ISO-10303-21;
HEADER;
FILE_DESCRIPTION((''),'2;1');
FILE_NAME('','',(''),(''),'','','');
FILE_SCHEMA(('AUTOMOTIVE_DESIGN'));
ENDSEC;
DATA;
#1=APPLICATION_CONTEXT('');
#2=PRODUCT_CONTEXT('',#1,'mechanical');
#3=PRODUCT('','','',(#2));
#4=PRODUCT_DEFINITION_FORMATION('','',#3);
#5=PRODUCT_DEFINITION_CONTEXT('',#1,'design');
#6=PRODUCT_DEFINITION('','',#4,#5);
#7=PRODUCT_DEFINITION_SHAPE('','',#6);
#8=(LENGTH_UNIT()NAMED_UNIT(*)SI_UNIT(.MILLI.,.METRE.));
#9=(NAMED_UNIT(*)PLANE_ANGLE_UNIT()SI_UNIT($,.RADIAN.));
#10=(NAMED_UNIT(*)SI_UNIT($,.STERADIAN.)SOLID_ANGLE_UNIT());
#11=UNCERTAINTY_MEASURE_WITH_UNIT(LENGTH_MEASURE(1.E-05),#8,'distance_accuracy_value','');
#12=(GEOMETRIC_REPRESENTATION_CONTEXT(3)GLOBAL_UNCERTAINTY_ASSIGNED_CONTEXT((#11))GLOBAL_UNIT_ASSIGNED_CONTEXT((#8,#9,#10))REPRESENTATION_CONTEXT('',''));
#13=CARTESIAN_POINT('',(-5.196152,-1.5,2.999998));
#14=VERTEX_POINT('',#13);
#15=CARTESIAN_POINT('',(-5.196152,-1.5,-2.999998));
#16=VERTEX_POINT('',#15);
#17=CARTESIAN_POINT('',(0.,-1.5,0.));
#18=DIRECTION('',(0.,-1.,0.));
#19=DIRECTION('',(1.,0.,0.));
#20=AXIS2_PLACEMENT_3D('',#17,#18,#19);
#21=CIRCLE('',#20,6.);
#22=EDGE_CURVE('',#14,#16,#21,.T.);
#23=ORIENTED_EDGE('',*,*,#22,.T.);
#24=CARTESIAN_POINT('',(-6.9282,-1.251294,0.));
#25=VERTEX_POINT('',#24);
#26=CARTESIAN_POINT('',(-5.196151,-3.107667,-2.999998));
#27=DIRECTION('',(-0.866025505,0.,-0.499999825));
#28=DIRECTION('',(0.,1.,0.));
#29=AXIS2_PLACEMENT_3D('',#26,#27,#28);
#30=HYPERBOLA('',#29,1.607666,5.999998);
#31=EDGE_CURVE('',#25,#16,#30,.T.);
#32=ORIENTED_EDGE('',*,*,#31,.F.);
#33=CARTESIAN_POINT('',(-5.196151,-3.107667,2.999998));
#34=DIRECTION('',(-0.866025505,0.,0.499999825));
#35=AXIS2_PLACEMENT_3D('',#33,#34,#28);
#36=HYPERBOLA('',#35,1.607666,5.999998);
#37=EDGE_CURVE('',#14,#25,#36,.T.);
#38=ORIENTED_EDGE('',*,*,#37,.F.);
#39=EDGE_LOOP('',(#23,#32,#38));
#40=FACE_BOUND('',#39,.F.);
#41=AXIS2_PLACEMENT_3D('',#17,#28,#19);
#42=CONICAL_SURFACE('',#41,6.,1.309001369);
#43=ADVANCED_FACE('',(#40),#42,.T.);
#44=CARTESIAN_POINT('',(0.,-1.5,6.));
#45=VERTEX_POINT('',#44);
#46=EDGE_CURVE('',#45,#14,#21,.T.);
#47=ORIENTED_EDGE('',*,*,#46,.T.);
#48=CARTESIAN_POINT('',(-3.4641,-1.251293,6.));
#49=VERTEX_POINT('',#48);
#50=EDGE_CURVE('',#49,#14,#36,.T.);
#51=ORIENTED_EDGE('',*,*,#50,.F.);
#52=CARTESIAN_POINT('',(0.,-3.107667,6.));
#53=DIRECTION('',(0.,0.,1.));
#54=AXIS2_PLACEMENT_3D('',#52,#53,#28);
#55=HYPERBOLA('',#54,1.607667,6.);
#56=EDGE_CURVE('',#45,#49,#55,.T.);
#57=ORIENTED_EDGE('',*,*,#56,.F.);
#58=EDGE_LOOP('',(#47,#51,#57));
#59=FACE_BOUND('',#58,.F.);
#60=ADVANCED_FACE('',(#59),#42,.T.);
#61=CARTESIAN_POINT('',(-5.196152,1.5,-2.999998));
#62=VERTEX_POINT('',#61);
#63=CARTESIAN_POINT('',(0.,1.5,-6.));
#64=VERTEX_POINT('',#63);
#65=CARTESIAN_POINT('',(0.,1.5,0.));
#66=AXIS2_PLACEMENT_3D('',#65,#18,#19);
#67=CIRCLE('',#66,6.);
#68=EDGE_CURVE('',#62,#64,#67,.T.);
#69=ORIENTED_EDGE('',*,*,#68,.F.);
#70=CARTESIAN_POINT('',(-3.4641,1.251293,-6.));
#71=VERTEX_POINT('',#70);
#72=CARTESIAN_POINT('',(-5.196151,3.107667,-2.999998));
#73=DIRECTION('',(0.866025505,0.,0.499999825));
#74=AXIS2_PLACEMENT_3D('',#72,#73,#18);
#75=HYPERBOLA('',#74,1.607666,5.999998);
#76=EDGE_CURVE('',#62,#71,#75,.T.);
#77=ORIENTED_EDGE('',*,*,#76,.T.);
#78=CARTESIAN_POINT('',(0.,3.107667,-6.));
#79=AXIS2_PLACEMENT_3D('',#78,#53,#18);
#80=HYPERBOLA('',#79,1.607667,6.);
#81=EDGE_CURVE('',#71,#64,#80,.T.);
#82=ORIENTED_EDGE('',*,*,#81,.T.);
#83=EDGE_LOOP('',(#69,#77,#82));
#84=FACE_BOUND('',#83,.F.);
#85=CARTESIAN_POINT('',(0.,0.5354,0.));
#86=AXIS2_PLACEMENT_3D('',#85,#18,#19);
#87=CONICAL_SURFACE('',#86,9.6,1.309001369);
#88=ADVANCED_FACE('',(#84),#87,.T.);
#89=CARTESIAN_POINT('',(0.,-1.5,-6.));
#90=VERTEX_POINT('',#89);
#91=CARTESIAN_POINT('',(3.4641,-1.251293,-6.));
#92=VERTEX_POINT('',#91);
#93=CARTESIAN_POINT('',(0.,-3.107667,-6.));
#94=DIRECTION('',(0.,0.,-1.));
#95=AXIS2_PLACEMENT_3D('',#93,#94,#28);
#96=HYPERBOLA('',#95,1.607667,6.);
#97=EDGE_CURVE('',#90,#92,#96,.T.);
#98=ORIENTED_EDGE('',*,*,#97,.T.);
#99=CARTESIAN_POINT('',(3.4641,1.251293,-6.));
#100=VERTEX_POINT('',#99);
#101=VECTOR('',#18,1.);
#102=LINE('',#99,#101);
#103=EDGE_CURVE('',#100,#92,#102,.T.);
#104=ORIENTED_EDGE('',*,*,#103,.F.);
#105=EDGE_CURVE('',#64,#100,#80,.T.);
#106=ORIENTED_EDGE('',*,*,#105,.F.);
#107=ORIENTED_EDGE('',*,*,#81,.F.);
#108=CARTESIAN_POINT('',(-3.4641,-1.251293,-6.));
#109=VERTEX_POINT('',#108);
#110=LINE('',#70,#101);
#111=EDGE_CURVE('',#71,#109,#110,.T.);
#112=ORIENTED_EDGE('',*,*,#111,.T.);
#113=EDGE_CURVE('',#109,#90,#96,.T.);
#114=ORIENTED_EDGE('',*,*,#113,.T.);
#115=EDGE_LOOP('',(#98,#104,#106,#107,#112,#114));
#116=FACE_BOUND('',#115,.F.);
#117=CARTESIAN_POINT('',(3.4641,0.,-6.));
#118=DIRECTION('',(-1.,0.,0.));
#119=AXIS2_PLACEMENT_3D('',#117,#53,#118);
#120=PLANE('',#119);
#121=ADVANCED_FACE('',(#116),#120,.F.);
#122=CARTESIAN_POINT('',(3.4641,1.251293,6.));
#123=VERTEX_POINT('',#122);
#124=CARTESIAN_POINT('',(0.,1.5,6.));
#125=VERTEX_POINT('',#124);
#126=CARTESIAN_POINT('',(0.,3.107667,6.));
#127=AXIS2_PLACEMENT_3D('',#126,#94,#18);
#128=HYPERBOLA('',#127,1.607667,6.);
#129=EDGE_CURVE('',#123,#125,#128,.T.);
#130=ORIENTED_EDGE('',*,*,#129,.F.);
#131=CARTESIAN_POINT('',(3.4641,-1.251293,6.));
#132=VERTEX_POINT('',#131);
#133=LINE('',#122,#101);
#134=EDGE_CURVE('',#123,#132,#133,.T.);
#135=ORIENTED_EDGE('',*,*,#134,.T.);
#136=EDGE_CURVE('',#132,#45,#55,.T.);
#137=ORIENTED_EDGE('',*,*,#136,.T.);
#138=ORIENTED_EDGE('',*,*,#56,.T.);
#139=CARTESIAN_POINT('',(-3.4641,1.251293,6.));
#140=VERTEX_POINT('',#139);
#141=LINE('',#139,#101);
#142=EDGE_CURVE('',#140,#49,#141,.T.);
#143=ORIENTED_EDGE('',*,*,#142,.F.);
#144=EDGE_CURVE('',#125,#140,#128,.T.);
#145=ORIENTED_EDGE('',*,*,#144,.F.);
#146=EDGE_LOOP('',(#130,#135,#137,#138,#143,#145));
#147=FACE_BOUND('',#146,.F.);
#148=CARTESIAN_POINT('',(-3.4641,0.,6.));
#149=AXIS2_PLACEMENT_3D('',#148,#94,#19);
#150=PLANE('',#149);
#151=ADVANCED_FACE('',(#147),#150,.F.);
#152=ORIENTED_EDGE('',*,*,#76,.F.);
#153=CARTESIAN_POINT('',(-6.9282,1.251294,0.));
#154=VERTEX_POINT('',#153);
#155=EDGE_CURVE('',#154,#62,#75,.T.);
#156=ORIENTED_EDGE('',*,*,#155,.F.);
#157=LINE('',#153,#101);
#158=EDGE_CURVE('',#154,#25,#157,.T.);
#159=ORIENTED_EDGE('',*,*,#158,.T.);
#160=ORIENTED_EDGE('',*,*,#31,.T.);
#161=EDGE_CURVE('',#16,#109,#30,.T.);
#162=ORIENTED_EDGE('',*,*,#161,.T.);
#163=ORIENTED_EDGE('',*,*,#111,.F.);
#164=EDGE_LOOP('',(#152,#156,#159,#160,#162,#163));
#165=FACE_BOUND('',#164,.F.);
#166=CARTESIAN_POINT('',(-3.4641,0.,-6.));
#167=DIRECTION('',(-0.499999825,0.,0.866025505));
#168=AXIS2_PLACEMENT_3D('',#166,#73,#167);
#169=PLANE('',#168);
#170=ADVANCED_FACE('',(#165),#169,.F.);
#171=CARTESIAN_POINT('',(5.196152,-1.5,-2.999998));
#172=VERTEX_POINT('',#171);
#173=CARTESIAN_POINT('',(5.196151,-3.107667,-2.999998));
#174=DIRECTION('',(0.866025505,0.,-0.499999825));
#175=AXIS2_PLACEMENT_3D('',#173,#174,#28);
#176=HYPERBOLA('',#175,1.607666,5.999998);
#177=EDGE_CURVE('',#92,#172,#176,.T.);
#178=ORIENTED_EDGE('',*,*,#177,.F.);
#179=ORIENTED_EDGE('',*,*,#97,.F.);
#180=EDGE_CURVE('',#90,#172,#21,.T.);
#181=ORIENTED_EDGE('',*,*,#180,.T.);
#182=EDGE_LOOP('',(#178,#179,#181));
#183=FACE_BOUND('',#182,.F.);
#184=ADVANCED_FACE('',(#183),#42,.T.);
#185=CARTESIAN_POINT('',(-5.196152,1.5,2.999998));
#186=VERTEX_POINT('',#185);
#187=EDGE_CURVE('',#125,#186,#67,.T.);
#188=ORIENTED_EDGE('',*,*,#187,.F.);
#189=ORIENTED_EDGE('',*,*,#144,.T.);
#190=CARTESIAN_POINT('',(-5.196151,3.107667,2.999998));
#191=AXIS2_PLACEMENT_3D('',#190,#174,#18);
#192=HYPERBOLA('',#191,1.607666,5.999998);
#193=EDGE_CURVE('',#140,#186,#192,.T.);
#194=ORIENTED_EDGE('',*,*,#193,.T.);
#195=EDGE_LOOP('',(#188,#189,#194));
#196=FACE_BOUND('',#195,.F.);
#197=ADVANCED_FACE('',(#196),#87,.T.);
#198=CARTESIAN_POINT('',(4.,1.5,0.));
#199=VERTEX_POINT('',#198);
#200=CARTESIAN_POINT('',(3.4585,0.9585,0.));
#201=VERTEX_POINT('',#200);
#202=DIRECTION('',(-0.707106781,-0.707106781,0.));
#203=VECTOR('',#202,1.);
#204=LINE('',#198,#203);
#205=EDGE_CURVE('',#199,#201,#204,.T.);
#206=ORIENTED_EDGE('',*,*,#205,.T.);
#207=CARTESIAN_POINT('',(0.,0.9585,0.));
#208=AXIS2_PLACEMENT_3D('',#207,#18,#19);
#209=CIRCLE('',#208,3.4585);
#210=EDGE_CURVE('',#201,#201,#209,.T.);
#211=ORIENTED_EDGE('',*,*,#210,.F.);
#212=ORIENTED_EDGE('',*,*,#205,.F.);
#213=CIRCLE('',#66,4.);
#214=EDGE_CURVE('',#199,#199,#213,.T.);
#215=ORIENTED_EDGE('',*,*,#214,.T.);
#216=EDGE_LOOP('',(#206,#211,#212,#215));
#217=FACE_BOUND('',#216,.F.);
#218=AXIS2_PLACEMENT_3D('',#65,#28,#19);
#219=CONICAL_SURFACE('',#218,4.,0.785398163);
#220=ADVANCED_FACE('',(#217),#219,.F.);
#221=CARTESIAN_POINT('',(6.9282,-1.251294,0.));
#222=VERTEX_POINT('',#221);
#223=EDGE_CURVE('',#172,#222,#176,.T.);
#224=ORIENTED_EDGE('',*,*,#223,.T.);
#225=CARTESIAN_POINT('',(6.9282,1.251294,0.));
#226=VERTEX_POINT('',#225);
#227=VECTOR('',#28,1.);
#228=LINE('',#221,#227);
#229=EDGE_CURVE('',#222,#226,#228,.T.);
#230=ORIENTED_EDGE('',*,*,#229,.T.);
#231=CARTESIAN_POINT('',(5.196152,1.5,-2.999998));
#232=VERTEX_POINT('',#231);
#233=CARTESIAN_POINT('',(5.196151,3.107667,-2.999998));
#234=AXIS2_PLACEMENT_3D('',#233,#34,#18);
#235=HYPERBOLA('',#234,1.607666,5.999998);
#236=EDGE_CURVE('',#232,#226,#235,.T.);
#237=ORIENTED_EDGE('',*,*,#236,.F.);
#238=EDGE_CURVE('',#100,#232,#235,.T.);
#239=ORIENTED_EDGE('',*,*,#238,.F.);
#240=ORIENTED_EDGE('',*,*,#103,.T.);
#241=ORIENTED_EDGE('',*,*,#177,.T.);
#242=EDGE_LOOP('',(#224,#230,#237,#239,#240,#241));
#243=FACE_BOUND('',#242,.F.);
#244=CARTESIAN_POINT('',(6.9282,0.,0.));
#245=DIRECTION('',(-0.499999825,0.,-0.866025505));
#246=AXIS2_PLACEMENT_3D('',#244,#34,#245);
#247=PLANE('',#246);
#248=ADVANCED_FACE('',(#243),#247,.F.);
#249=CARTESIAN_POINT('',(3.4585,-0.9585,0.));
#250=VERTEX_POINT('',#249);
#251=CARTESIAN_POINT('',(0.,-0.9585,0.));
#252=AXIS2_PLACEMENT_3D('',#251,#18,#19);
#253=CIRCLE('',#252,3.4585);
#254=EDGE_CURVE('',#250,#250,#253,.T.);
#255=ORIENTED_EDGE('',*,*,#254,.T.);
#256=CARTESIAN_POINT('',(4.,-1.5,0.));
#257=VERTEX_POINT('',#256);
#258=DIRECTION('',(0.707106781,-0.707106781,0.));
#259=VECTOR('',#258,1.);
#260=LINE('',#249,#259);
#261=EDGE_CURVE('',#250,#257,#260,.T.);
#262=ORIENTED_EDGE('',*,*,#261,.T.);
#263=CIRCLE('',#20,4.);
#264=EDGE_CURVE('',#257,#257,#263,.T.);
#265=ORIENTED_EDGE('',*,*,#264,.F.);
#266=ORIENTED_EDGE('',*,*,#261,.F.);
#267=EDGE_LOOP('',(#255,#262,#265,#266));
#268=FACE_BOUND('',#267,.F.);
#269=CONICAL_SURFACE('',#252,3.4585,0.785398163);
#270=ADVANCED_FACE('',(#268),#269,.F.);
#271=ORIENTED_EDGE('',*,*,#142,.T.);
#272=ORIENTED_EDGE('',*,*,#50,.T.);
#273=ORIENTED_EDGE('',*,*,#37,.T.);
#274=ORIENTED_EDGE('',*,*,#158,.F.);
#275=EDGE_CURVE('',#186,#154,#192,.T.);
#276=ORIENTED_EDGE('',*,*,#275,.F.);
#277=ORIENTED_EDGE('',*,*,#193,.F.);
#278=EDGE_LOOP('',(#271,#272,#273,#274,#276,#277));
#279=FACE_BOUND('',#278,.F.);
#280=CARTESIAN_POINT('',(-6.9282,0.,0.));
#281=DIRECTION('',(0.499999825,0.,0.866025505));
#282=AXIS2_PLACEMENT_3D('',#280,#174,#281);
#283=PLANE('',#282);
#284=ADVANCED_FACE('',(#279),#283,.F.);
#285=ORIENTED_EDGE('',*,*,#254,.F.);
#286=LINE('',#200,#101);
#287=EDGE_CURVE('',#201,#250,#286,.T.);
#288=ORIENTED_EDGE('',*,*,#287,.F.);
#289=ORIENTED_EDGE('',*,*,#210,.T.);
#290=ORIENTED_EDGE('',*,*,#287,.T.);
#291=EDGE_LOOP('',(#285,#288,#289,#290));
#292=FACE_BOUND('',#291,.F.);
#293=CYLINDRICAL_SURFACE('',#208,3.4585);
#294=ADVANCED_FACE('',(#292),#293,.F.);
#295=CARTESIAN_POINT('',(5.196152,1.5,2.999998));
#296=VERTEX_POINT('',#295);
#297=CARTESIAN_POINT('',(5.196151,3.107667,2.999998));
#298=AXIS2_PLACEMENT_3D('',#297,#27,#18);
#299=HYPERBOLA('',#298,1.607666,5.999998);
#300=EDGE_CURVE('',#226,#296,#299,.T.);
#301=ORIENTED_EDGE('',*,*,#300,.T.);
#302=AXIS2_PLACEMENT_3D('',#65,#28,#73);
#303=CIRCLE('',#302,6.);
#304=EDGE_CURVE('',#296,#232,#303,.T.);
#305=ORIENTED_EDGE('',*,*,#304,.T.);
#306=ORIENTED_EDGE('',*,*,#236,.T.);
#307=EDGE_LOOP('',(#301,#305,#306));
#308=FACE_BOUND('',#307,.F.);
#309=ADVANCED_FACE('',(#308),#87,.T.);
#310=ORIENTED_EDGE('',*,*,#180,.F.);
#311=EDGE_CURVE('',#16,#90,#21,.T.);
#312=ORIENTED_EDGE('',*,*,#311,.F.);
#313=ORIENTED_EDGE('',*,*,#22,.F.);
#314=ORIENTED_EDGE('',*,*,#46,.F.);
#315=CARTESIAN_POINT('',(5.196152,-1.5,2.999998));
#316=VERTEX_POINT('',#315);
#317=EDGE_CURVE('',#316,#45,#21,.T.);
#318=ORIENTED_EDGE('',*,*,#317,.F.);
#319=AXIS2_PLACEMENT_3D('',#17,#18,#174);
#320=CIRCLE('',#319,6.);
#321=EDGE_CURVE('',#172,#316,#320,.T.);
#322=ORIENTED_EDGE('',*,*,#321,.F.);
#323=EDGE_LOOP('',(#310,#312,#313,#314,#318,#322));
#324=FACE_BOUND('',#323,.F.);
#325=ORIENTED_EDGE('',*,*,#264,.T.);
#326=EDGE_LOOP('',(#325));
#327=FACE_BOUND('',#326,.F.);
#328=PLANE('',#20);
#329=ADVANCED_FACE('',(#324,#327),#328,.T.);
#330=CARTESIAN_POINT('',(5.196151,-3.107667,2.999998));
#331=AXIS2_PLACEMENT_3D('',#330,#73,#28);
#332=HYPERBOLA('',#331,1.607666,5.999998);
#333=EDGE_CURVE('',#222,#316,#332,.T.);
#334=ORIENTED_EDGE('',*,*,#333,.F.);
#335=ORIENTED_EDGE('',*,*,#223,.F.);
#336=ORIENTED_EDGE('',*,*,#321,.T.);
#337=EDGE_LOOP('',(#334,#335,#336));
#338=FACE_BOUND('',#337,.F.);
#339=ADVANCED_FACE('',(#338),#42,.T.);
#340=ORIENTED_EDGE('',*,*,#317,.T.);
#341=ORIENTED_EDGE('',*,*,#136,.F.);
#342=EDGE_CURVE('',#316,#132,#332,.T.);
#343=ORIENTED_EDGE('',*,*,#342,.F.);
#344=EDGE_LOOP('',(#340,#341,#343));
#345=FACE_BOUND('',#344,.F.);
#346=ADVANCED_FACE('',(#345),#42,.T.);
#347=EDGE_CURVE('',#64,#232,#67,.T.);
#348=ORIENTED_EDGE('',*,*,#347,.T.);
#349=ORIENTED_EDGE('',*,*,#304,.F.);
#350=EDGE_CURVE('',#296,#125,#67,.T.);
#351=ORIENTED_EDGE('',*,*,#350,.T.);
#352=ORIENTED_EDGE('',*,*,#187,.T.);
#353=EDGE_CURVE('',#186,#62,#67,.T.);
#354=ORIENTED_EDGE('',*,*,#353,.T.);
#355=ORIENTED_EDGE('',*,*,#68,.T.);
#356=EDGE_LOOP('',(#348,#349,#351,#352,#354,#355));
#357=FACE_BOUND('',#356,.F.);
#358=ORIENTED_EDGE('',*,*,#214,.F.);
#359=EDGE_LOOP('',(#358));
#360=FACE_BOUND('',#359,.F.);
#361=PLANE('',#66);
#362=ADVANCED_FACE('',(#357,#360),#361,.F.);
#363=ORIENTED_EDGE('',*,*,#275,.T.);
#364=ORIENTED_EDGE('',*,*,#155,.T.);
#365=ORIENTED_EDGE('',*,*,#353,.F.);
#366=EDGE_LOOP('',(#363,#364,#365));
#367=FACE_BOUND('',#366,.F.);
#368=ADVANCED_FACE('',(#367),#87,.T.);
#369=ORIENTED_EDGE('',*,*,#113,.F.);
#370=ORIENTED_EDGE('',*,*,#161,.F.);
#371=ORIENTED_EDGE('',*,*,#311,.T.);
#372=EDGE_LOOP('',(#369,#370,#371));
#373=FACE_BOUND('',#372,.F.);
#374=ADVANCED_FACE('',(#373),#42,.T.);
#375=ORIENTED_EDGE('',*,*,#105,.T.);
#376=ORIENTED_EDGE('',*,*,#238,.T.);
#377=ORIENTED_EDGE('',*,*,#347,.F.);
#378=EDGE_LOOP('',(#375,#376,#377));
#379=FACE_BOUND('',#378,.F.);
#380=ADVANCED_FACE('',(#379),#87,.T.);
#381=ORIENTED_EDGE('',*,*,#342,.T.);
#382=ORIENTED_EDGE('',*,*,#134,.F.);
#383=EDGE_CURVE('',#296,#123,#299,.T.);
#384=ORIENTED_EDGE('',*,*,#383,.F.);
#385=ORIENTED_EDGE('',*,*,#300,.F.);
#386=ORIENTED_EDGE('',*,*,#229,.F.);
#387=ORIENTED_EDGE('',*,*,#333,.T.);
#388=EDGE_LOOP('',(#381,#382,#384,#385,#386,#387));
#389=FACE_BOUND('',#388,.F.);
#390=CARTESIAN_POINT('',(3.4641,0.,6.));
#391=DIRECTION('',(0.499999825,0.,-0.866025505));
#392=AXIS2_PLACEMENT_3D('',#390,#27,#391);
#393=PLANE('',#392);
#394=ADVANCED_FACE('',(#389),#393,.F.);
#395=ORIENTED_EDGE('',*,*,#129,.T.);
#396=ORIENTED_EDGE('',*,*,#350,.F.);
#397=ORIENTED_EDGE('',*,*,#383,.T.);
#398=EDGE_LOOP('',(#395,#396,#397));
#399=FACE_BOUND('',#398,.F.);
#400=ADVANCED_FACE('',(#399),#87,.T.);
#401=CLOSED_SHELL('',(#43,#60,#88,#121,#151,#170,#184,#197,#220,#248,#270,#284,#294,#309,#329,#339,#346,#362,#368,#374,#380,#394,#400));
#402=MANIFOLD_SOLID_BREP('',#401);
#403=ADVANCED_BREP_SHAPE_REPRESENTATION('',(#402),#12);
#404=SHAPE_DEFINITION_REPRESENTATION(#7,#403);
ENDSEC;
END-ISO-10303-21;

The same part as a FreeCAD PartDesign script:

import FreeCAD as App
import Part
import Sketcher
Q = App.Units.Quantity


def add_polygon(sketch, points):
    """Adds a closed chain of lines whose ends are joined by coincident constraints."""
    first, n = sketch.GeometryCount, len(points)
    for a, b in zip(points, points[1:] + points[:1]):
        sketch.addGeometry(Part.LineSegment(App.Vector(*a, 0), App.Vector(*b, 0)), False)
    for i in range(n):
        sketch.addConstraint(Sketcher.Constraint("Coincident", first + i, 2, first + (i + 1) % n, 1))

doc = App.newDocument("Part")
body = doc.addObject("PartDesign::Body", "Body")

# Sketch on XY plane
sketch1 = doc.addObject("Sketcher::SketchObject", "Sketch")
body.addObject(sketch1)
sketch1.AttachmentSupport = (doc.XY_Plane, [""])
sketch1.MapMode = "FlatFace"
add_polygon(sketch1, [(4, 1.5), (3.5, 1), (3.5, -1), (4, -1.5), (6, -1.5), (9.6, -0.5), (9.6, 0.5), (6, 1.5)])  # lines 0-7
sketch1.addConstraint(Sketcher.Constraint("Vertical", 1))
sketch1.addConstraint(Sketcher.Constraint("Horizontal", 3))
sketch1.addConstraint(Sketcher.Constraint("Vertical", 5))
sketch1.addConstraint(Sketcher.Constraint("Horizontal", 7))
sketch1.addConstraint(Sketcher.Constraint("Symmetric", 3, 2, 6, 2, -1))
sketch1.addConstraint(Sketcher.Constraint("Perpendicular", 0, 2))
sketch1.addConstraint(Sketcher.Constraint("Vertical", 2, 2, 7, 2))
sketch1.addConstraint(Sketcher.Constraint("Equal", 0, 2))
sketch1.addConstraint(Sketcher.Constraint("Equal", 4, 6))
sketch1.addConstraint(Sketcher.Constraint("DistanceX", 3, 1, 3, 2, Q("2 mm")))
sketch1.addConstraint(Sketcher.Constraint("Angle", 4, Q("14.9997 deg")))
sketch1.addConstraint(Sketcher.Constraint("DistanceX", -1, 1, 2, 2, Q("4 mm")))
sketch1.addConstraint(Sketcher.Constraint("DistanceY", 3, 2, 6, 2, Q("3 mm")))
sketch1.addConstraint(Sketcher.Constraint("DistanceX", -1, 1, 4, 2, Q("9.6 mm")))
sketch1.addConstraint(Sketcher.Constraint("DistanceY", 1, 2, 1, 1, Q("1.917 mm")))
revolution = doc.addObject("PartDesign::Revolution", "Revolution")
body.addObject(revolution)
revolution.Profile = sketch1
revolution.ReferenceAxis = (sketch1, ["V_Axis"])
revolution.Angle = 360

# Sketch on XZ plane
sketch2 = doc.addObject("Sketcher::SketchObject", "Sketch001")
body.addObject(sketch2)
sketch2.AttachmentSupport = (doc.XZ_Plane, [""])
sketch2.MapMode = "FlatFace"
sketch2.addGeometry(Part.Circle(App.Vector(0, 0, 0), App.Vector(0, 0, 1), 12), False)  # 0
add_polygon(sketch2, [(-3, 6), (-7, 0), (-3, -6), (3, -6), (7, 0), (3, 6)])  # lines 1-6
sketch2.addConstraint(Sketcher.Constraint("Horizontal", 3))
sketch2.addConstraint(Sketcher.Constraint("Horizontal", 6))
sketch2.addConstraint(Sketcher.Constraint("Coincident", 0, 3, -1, 1))
sketch2.addConstraint(Sketcher.Constraint("Symmetric", 1, 2, 4, 2, -1, 1))
sketch2.addConstraint(Sketcher.Constraint("Symmetric", 2, 2, 5, 2, -1, 1))
sketch2.addConstraint(Sketcher.Constraint("PointOnObject", 1, 2, -1))
sketch2.addConstraint(Sketcher.Constraint("Parallel", 1, 4))
sketch2.addConstraint(Sketcher.Constraint("Vertical", 3, 2, 5, 2))
sketch2.addConstraint(Sketcher.Constraint("Diameter", 0, Q("24 mm")))
sketch2.addConstraint(Sketcher.Constraint("Angle", 1, Q("-120 deg")))
sketch2.addConstraint(Sketcher.Constraint("DistanceY", 2, 2, -1, 1, Q("6 mm")))
sketch2.addConstraint(Sketcher.Constraint("DistanceX", 3, 1, 3, 2, Q("6.9282 mm")))
pocket1 = doc.addObject("PartDesign::Pocket", "Pocket")
body.addObject(pocket1)
pocket1.Profile = sketch2
pocket1.Length = 3
pocket1.Midplane = True

doc.recompute()
